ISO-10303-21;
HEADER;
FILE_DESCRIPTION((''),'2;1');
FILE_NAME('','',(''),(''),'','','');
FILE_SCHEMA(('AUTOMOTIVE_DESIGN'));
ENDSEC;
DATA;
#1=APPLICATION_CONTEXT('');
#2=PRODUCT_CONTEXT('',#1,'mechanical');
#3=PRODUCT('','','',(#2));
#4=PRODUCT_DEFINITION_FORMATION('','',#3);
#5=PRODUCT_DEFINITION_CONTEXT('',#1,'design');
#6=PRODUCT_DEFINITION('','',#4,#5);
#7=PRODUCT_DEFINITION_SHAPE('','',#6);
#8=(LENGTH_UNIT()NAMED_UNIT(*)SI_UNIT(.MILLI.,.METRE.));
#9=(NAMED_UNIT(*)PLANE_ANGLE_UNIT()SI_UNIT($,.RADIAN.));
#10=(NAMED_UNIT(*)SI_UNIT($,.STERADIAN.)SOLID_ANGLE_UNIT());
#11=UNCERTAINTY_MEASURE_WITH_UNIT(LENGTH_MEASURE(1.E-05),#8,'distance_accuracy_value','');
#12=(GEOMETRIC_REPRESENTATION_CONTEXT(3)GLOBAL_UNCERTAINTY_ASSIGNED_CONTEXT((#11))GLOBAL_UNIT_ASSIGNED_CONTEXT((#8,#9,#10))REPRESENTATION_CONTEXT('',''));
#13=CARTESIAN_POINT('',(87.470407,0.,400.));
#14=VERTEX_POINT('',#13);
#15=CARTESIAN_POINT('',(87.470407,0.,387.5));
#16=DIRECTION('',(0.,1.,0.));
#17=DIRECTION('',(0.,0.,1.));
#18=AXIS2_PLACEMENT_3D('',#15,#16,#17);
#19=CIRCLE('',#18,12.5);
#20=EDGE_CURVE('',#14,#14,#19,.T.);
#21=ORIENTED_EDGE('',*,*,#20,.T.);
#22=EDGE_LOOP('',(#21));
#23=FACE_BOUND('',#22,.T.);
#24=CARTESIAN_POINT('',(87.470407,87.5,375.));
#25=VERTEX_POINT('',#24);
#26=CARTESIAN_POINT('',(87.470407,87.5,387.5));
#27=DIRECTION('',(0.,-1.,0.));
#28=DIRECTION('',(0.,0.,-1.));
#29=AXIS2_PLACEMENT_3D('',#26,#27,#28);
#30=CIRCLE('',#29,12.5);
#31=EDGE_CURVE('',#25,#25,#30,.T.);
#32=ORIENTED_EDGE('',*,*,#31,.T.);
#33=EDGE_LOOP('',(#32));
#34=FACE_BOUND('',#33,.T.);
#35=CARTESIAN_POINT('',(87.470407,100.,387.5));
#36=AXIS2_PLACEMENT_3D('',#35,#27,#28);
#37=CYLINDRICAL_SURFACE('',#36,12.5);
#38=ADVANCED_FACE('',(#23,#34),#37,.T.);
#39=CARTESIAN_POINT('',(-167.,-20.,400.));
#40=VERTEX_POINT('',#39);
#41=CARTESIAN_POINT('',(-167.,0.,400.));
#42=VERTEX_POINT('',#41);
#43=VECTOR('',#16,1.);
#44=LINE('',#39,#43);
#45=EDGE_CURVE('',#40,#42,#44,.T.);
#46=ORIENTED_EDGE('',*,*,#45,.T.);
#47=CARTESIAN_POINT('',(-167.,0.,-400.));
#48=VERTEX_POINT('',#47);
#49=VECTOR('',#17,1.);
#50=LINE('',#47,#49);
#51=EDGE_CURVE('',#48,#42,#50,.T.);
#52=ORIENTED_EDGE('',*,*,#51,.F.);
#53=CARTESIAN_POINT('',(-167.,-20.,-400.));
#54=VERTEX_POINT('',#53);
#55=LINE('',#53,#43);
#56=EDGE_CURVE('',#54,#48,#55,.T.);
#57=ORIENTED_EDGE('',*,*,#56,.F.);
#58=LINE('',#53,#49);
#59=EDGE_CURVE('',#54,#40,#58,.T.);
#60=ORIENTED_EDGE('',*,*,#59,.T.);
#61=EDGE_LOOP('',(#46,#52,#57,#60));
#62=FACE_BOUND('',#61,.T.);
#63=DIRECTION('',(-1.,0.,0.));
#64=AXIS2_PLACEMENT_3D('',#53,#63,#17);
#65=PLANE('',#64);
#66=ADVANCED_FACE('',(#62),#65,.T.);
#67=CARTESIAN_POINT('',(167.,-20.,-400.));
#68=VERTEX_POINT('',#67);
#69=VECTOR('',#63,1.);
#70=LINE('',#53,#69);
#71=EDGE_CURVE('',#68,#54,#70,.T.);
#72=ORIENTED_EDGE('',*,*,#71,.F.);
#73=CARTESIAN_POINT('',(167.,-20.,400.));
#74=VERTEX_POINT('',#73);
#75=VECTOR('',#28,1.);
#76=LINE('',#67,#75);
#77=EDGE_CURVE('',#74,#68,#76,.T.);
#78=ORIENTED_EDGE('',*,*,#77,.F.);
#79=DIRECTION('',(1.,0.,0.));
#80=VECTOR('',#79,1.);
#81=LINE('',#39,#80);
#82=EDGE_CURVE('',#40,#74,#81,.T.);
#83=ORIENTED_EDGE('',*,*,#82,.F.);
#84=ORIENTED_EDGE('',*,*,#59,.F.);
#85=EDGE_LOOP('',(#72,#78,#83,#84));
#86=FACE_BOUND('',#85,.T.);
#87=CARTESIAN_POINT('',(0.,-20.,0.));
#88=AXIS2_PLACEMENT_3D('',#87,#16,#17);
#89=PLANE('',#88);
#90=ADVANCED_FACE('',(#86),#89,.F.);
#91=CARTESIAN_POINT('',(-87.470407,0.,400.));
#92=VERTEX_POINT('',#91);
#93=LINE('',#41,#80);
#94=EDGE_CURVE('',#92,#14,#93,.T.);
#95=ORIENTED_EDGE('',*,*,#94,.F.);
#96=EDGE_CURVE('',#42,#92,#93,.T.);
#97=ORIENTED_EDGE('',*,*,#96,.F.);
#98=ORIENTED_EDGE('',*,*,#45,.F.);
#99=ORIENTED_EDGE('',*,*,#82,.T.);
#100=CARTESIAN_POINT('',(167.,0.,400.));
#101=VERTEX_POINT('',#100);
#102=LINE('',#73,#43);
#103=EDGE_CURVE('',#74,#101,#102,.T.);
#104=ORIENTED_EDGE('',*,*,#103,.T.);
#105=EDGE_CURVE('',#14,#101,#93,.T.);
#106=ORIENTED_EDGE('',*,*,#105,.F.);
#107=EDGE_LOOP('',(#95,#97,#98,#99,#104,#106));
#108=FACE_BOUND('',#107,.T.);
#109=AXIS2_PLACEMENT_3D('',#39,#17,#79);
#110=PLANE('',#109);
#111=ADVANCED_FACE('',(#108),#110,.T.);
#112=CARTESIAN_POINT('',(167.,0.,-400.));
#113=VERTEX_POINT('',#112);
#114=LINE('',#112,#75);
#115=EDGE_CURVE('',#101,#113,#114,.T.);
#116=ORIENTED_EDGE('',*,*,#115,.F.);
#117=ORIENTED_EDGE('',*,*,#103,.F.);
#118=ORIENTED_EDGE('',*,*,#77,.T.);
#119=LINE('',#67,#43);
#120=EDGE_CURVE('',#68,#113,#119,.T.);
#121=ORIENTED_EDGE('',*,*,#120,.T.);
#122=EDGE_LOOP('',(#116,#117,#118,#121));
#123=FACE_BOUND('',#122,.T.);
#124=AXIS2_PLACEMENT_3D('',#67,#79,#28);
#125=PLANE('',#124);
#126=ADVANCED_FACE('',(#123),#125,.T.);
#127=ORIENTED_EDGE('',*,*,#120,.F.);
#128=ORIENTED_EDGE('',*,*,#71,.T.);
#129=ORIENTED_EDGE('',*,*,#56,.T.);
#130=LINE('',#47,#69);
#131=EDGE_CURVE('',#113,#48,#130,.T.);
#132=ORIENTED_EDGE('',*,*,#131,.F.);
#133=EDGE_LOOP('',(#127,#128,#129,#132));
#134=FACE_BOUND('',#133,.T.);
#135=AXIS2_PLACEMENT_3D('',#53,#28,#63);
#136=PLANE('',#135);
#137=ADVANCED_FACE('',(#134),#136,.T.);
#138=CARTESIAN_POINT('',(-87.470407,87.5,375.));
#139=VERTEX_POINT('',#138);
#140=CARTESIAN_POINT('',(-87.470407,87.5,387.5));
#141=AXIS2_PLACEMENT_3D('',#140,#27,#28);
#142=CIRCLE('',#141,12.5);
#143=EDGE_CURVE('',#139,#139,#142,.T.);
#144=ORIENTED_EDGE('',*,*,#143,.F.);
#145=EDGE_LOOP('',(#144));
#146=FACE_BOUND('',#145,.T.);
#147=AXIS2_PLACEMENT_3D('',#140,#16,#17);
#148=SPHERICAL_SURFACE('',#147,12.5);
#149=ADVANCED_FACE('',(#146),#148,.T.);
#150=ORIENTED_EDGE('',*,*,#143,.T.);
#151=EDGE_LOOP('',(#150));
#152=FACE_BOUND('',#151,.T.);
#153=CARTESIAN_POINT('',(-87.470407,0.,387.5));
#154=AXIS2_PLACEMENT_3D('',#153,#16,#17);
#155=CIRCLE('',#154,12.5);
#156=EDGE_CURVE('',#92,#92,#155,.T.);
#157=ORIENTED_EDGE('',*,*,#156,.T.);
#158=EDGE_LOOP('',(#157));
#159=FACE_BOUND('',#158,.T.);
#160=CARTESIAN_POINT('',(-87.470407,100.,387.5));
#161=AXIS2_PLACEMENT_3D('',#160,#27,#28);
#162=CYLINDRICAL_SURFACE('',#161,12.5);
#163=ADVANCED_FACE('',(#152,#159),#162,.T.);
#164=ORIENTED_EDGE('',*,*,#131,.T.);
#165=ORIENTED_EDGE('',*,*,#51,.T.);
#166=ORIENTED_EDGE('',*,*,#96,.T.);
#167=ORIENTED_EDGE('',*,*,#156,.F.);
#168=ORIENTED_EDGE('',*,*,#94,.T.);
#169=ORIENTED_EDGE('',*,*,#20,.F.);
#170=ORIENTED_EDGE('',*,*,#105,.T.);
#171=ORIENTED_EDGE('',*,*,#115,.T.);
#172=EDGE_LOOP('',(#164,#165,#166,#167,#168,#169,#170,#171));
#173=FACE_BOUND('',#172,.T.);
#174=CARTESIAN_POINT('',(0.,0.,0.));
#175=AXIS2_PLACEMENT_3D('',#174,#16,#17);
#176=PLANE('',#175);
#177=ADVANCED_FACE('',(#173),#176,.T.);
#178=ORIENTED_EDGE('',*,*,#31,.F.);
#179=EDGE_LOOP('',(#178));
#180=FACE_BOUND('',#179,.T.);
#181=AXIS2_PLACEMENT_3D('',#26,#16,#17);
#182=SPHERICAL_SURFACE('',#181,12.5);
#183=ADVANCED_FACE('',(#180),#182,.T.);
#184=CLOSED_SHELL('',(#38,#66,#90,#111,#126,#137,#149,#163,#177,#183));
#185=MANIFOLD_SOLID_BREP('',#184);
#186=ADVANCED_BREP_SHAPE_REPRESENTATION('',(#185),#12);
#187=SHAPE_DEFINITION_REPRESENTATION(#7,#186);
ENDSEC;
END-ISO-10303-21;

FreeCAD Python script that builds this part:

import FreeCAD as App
import Part
import Sketcher


def edges_at(feature, points):
    """Names of the edges that pass closest to the given points."""
    edges = feature.Shape.Edges
    near = lambda p: min(range(len(edges)), key=lambda i: edges[i].distToShape(Part.Vertex(*p))[0])
    return sorted({f"Edge{near(p) + 1}" for p in points})


def add_polygon(sketch, points):
    """Adds a closed chain of lines whose ends are joined by coincident constraints."""
    first, n = sketch.GeometryCount, len(points)
    for a, b in zip(points, points[1:] + points[:1]):
        sketch.addGeometry(Part.LineSegment(App.Vector(*a, 0), App.Vector(*b, 0)), False)
    for i in range(n):
        sketch.addConstraint(Sketcher.Constraint("Coincident", first + i, 2, first + (i + 1) % n, 1))

doc = App.newDocument("Part")
body = doc.addObject("PartDesign::Body", "Body")

# Sketch on XZ plane
sketch1 = body.newObject("Sketcher::SketchObject", "Sketch")
sketch1.AttachmentSupport = (doc.getObject("XZ_Plane"), [""])
sketch1.MapMode = "FlatFace"
add_polygon(sketch1, [(-167, -400), (-167, 400), (167, 400), (167, -400)])  # lines 0-3
sketch1.addConstraint([
    Sketcher.Constraint("Vertical", 0),
    Sketcher.Constraint("Horizontal", 1),
    Sketcher.Constraint("Vertical", 2),
    Sketcher.Constraint("Horizontal", 3),
    Sketcher.Constraint("Symmetric", 0, 2, 2, 2, -1, 1),
    Sketcher.Constraint("DistanceX", 1, 1, 1, 2, 334.0),
    Sketcher.Constraint("DistanceY", 0, 1, 0, 2, 800.0),
])
pad1 = body.newObject("PartDesign::Pad", "Pad")
pad1.Profile = sketch1
pad1.Length = 20

# Sketch on XZ plane
sketch2 = body.newObject("Sketcher::SketchObject", "Sketch001")
sketch2.AttachmentSupport = (doc.getObject("XZ_Plane"), [""])
sketch2.MapMode = "FlatFace"
sketch2.addGeometry([
    Part.Circle(App.Vector(-87.470407, 387.5, 0), App.Vector(0, 0, 1), 12.5),
    Part.Circle(App.Vector(87.470407, 387.5, 0), App.Vector(0, 0, 1), 12.5),
], False)
sketch2.addConstraint([
    Sketcher.Constraint("Equal", 0, 1),
    Sketcher.Constraint("Symmetric", 0, 3, 1, 3, -2),
    Sketcher.Constraint("Diameter", 0, 25.0),
    Sketcher.Constraint("DistanceY", -1, 1, 0, 3, 387.5),
    Sketcher.Constraint("DistanceX", 0, 3, -1, 1, 87.470407),
])
pad2 = body.newObject("PartDesign::Pad", "Pad001")
pad2.Profile = sketch2
pad2.Length = 100
pad2.Reversed = True
doc.recompute()

fillet = body.newObject("PartDesign::Fillet", "Fillet")
fillet.Base = (pad2, edges_at(pad2, [(-87.47, 100, 375), (87.47, 100, 375)]))
fillet.Radius = 12.5

doc.recompute()
